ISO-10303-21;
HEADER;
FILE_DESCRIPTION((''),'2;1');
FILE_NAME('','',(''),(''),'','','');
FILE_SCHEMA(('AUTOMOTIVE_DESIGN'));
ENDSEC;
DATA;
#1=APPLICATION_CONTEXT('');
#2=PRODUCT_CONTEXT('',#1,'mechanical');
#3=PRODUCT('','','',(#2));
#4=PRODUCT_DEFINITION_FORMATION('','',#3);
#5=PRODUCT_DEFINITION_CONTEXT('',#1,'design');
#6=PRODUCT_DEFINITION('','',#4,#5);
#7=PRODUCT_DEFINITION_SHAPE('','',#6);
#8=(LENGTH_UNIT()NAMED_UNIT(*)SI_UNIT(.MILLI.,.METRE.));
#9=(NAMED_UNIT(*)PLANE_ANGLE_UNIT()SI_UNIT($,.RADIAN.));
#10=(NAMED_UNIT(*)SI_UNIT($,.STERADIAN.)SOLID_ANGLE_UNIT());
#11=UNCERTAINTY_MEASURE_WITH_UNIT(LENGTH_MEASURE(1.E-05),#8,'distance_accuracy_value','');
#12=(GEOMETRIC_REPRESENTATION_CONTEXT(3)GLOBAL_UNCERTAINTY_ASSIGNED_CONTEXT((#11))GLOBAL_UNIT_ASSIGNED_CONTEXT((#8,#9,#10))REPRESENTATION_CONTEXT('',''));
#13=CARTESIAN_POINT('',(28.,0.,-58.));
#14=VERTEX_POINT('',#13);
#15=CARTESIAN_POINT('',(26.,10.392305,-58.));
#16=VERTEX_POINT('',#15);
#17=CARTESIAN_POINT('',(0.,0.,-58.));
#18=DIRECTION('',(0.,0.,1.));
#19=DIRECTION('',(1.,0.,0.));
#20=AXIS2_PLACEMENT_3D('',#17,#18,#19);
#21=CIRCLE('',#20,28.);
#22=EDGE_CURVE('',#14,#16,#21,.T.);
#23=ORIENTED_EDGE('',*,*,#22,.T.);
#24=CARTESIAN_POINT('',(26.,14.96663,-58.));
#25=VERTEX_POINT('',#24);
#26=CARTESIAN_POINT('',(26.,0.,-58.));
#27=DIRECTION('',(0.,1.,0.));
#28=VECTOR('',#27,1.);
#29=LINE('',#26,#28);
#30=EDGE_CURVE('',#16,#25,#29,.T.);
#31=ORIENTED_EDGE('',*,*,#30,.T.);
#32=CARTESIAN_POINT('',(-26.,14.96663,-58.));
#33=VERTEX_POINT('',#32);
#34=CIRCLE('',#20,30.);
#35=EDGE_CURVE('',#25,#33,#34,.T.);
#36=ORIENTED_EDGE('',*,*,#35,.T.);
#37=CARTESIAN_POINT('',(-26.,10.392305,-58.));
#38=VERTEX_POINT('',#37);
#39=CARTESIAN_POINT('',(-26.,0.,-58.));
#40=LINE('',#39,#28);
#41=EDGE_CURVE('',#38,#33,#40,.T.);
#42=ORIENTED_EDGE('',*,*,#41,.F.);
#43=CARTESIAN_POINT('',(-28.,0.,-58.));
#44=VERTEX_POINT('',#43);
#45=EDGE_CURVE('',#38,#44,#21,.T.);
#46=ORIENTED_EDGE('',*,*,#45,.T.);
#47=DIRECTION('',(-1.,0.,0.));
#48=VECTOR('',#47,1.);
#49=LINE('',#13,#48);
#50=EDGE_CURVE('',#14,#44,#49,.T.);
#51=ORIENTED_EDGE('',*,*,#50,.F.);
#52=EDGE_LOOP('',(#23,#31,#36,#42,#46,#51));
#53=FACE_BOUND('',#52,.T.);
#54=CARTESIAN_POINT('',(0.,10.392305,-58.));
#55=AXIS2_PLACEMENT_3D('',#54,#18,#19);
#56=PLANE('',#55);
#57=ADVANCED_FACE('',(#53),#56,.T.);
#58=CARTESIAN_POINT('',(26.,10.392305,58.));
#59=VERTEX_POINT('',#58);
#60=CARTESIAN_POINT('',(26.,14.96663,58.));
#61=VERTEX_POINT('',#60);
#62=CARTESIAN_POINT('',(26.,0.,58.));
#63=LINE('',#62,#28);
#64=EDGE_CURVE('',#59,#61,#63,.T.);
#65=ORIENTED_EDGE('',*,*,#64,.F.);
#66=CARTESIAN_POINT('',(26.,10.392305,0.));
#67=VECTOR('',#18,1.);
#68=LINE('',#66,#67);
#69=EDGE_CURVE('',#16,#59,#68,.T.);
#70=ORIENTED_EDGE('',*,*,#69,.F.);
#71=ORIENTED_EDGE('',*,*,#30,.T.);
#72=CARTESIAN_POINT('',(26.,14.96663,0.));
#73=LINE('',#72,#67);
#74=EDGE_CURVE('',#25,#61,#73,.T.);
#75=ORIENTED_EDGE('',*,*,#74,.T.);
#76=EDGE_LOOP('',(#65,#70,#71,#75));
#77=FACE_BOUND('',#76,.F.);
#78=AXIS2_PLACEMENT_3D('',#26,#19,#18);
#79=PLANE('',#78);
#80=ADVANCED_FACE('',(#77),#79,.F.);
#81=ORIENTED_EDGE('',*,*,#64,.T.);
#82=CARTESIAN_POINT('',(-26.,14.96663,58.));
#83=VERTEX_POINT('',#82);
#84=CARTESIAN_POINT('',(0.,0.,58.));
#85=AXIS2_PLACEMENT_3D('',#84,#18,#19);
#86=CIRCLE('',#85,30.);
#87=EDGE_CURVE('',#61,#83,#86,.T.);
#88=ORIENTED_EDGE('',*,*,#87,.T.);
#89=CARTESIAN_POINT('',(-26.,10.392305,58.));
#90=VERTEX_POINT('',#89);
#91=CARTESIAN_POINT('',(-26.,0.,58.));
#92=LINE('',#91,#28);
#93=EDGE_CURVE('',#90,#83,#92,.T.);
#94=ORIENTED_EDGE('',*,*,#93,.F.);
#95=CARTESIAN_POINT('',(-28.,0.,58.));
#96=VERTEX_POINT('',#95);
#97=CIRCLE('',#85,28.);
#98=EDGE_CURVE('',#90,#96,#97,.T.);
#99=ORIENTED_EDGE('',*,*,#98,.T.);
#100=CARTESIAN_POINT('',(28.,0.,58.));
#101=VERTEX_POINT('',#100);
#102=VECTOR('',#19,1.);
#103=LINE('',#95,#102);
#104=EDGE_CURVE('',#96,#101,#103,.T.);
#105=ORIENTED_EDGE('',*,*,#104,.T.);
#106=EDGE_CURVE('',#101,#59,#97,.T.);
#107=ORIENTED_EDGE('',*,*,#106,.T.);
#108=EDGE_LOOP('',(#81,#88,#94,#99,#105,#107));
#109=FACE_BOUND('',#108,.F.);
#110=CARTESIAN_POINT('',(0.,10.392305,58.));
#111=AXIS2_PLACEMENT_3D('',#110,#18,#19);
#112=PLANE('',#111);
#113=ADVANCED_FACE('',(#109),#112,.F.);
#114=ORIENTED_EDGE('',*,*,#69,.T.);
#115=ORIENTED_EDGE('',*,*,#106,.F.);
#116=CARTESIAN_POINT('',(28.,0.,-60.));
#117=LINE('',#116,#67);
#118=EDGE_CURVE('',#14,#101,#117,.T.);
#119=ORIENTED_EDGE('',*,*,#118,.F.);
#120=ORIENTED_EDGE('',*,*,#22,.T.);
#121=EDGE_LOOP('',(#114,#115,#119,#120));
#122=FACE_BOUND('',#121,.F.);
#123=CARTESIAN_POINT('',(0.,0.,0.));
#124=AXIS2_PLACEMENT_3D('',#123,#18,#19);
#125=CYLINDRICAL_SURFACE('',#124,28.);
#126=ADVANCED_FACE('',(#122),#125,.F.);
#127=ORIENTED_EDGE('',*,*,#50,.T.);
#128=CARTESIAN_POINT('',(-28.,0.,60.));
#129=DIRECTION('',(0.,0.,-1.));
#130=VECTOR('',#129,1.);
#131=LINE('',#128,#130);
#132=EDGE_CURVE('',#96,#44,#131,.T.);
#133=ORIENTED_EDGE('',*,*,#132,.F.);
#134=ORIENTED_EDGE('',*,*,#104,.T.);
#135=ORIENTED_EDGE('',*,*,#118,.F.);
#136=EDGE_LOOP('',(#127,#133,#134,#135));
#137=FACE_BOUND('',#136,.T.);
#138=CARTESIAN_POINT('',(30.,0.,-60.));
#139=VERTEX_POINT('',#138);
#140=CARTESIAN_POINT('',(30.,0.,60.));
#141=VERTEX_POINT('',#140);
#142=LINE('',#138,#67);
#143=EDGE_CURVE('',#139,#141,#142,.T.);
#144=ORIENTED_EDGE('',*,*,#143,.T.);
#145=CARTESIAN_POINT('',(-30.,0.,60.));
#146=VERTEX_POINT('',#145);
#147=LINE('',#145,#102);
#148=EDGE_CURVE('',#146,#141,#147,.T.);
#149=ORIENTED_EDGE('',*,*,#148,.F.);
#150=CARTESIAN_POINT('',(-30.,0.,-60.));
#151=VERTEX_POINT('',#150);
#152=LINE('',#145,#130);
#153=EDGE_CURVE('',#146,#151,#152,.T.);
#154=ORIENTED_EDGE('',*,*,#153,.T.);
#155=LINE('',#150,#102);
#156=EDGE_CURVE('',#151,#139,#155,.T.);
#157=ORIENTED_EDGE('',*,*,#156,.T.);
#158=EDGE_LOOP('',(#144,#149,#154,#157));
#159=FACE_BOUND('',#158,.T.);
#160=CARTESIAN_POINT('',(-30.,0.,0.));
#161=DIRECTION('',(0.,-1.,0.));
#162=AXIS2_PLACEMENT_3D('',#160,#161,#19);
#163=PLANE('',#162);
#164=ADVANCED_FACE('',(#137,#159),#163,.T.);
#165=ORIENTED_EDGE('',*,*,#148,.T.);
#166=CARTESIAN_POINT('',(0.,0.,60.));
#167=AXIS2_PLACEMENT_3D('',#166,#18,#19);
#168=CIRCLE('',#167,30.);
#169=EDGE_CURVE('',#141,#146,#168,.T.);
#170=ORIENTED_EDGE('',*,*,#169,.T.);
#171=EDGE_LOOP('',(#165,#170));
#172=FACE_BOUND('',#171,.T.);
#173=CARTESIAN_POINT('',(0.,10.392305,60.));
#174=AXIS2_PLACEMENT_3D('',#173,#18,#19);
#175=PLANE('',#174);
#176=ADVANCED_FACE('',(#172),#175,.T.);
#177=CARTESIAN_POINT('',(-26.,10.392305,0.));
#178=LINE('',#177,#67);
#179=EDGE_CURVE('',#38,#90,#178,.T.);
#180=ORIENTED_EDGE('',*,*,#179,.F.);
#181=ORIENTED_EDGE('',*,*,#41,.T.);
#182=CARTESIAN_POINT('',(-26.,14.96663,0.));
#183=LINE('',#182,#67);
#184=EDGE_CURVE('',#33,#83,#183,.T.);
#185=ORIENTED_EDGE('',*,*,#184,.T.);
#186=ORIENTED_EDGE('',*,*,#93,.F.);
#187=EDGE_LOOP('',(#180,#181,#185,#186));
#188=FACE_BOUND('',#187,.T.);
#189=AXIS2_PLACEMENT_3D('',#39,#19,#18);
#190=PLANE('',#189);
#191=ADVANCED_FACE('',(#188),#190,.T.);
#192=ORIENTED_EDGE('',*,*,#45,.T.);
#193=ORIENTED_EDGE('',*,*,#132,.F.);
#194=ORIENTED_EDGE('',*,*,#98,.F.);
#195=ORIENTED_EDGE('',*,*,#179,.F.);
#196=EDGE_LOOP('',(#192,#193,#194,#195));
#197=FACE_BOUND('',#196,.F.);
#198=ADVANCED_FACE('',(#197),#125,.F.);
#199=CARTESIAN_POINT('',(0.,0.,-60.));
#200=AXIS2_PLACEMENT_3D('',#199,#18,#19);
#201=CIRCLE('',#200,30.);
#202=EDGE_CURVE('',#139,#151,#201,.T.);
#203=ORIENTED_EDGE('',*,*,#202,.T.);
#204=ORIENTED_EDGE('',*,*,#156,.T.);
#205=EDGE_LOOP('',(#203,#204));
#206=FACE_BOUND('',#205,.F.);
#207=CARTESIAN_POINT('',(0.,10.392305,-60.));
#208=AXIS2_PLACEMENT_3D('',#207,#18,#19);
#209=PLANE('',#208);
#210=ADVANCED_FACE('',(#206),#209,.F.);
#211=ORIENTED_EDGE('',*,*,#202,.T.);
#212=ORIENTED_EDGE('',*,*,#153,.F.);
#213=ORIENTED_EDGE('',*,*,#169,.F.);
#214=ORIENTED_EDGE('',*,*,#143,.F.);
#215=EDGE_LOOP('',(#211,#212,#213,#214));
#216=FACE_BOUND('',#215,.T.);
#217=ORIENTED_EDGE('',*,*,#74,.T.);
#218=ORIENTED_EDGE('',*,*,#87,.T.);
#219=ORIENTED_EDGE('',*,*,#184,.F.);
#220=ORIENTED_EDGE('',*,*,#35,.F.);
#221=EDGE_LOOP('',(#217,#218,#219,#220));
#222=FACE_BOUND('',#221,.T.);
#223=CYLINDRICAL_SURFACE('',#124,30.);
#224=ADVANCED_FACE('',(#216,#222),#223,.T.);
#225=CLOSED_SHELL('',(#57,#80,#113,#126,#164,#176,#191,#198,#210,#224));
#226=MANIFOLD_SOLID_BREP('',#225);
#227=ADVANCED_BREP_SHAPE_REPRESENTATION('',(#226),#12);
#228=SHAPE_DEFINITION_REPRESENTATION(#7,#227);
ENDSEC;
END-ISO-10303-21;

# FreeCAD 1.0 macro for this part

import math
import FreeCAD as App
import Part
import Sketcher

V = App.Vector


def faces_at(feature, points):
    """Names of the faces that lie closest to the given points."""
    faces = feature.Shape.Faces
    near = lambda p: min(range(len(faces)), key=lambda i: faces[i].distToShape(Part.Vertex(*p))[0])
    return sorted({f"Face{near(p) + 1}" for p in points})

doc = App.newDocument("Part")
params = doc.addObject("Spreadsheet::Sheet", "Params")
for row, (alias, value) in enumerate([
    ("sketch1_radius", "30 mm"),
    ("pad1_length", "120 mm"),
    ("thickness_wall", "2 mm"),
    ("sketch2_width", "52 mm"),
    ("sketch2_height", "116 mm"),
    ("pocket1_length", "35 mm"),
], start=1):
    params.set(f"A{row}", alias)
    params.set(f"B{row}", "=" + value)
    params.setAlias(f"B{row}", alias)

body = doc.addObject("PartDesign::Body", "Body")

sketch1 = body.newObject("Sketcher::SketchObject", "Sketch")
sketch1.AttachmentSupport = (doc.getObject("XY_Plane"), [""])
sketch1.MapMode = "FlatFace"
sketch1.addGeometry(Part.LineSegment(V(-30, 0, 0), V(30, 0, 0)), False)
sketch1.addGeometry(Part.ArcOfCircle(Part.Circle(V(0, 0, 0), V(0, 0, 1), 30), math.radians(0), math.radians(180)), False)
sketch1.addConstraint(Sketcher.Constraint("Coincident", 0, 1, 1, 2))
sketch1.addConstraint(Sketcher.Constraint("Coincident", 1, 1, 0, 2))
sketch1.addConstraint(Sketcher.Constraint("Horizontal", 0))
sketch1.addConstraint(Sketcher.Constraint("Coincident", 1, 3, -1, 1))
sketch1.addConstraint(Sketcher.Constraint("PointOnObject", 0, 1, -1))
sketch1.addConstraint(Sketcher.Constraint("Radius", 1, 30.0))
sketch1.setExpression("Constraints[5]", "Params.sketch1_radius")
pad1 = body.newObject("PartDesign::Pad", "Pad")
pad1.Profile = sketch1
pad1.setExpression("Length", "Params.pad1_length")
pad1.Midplane = True
doc.recompute()

thickness = body.newObject("PartDesign::Thickness", "Thickness")
thickness.Base = (pad1, faces_at(pad1, [(0, 0, 0)]))
thickness.setExpression("Value", "Params.thickness_wall")
thickness.Reversed = True
thickness.Join = "Arc"

sketch2 = body.newObject("Sketcher::SketchObject", "Sketch001")
sketch2.AttachmentSupport = (doc.getObject("XZ_Plane"), [""])
sketch2.MapMode = "FlatFace"
sketch2.addGeometry(Part.LineSegment(V(-26, 58, 0), V(-26, -58, 0)), False)
sketch2.addGeometry(Part.LineSegment(V(-26, -58, 0), V(26, -58, 0)), False)
sketch2.addGeometry(Part.LineSegment(V(26, -58, 0), V(26, 58, 0)), False)
sketch2.addGeometry(Part.LineSegment(V(26, 58, 0), V(-26, 58, 0)), False)
sketch2.addConstraint(Sketcher.Constraint("Coincident", 0, 2, 1, 1))
sketch2.addConstraint(Sketcher.Constraint("Coincident", 1, 2, 2, 1))
sketch2.addConstraint(Sketcher.Constraint("Coincident", 2, 2, 3, 1))
sketch2.addConstraint(Sketcher.Constraint("Coincident", 3, 2, 0, 1))
sketch2.addConstraint(Sketcher.Constraint("Vertical", 0))
sketch2.addConstraint(Sketcher.Constraint("Horizontal", 1))
sketch2.addConstraint(Sketcher.Constraint("Vertical", 2))
sketch2.addConstraint(Sketcher.Constraint("Horizontal", 3))
sketch2.addConstraint(Sketcher.Constraint("Symmetric", 0, 2, 2, 2, -1, 1))
sketch2.addConstraint(Sketcher.Constraint("DistanceX", 1, 1, 1, 2, 52.0))
sketch2.addConstraint(Sketcher.Constraint("DistanceY", 0, 2, 0, 1, 116.0))
sketch2.setExpression("Constraints[9]", "Params.sketch2_width")
sketch2.setExpression("Constraints[10]", "Params.sketch2_height")
pocket1 = body.newObject("PartDesign::Pocket", "Pocket")
pocket1.Profile = sketch2
pocket1.setExpression("Length", "Params.pocket1_length")

doc.recompute()
